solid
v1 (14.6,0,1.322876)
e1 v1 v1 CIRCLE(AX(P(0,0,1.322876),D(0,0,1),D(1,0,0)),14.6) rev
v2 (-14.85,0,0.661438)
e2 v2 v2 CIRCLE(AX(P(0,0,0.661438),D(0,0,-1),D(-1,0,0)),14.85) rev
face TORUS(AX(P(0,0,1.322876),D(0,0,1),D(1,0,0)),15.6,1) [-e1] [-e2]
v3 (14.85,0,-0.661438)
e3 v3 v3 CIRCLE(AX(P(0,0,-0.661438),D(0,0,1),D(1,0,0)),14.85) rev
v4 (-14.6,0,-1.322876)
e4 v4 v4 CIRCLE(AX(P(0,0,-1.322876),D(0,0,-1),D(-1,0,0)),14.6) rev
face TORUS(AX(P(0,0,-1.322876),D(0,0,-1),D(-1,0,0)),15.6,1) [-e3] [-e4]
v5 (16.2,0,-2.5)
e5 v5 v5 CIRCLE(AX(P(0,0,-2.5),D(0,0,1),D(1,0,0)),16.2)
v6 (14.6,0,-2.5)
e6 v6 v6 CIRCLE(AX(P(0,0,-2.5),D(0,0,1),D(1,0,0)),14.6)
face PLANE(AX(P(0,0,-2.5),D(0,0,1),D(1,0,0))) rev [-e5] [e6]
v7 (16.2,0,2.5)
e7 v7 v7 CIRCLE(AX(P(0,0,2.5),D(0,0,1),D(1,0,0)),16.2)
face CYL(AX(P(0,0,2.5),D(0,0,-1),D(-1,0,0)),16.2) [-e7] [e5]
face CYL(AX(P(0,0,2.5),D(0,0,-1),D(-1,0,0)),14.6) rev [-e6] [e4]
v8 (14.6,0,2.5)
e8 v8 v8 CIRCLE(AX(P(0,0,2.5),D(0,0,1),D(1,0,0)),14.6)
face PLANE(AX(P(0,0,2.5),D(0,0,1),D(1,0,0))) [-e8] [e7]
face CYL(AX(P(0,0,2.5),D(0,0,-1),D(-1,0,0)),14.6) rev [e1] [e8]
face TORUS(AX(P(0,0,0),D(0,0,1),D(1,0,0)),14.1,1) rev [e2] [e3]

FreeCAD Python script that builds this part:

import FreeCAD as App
import Part
import Sketcher

V = App.Vector


def edges_at(feature, points):
    """Names of the edges that pass closest to the given points."""
    edges = feature.Shape.Edges
    near = lambda p: min(range(len(edges)), key=lambda i: edges[i].distToShape(Part.Vertex(*p))[0])
    return sorted({f"Edge{near(p) + 1}" for p in points})

doc = App.newDocument("Part")
body = doc.addObject("PartDesign::Body", "Body")

# Sketch on XY plane
sketch1 = body.newObject("Sketcher::SketchObject", "Sketch")
sketch1.AttachmentSupport = (doc.getObject("XY_Plane"), [""])
sketch1.MapMode = "FlatFace"
sketch1.addGeometry(Part.Circle(V(0, 0, 0), V(0, 0, 1), 16.2), False)
sketch1.addGeometry(Part.Circle(V(0, 0, 0), V(0, 0, 1), 14.6), False)
sketch1.addConstraint(Sketcher.Constraint("Coincident", 0, 3, -1, 1))
sketch1.addConstraint(Sketcher.Constraint("Coincident", 1, 3, -1, 1))
sketch1.addConstraint(Sketcher.Constraint("Diameter", 0, 32.4))
sketch1.addConstraint(Sketcher.Constraint("Diameter", 1, 29.2))
pad1 = body.newObject("PartDesign::Pad", "Pad")
pad1.Profile = sketch1
pad1.Length = 5
pad1.Midplane = True

# Sketch on XZ plane
sketch2 = body.newObject("Sketcher::SketchObject", "Sketch001")
sketch2.AttachmentSupport = (doc.getObject("XZ_Plane"), [""])
sketch2.MapMode = "FlatFace"
sketch2.addGeometry(Part.Circle(V(-14.1, 0, 0), V(0, 0, 1), 1), False)
sketch2.addConstraint(Sketcher.Constraint("PointOnObject", 0, 3, -1))
sketch2.addConstraint(Sketcher.Constraint("Diameter", 0, 2.0))
sketch2.addConstraint(Sketcher.Constraint("DistanceX", 0, 3, -1, 1, 14.1))
groove = body.newObject("PartDesign::Groove", "Groove")
groove.Profile = sketch2
groove.ReferenceAxis = (sketch2, ["V_Axis"])
groove.Angle = 360
doc.recompute()

fillet = body.newObject("PartDesign::Fillet", "Fillet")
fillet.Base = (groove, edges_at(groove, [(0, 14.6, 0.866), (0, -14.6, -0.866)]))
fillet.Radius = 1

doc.recompute()
